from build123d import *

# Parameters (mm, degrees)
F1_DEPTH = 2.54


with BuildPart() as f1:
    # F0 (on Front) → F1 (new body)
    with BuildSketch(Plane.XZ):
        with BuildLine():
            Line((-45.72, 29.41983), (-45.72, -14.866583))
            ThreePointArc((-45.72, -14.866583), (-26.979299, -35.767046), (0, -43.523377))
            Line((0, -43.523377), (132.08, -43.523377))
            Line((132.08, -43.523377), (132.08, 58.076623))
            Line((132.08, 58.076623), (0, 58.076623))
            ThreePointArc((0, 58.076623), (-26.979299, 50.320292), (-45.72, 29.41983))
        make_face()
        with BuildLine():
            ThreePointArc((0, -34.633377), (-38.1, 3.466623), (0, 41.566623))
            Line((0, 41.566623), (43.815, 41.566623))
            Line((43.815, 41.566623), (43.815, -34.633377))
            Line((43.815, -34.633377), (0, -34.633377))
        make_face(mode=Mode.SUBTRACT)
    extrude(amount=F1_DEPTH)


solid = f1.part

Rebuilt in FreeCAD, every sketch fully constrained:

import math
import FreeCAD as App
import Part
import Sketcher

V = App.Vector
Q = App.Units.Quantity

doc = App.newDocument("Part")
body = doc.addObject("PartDesign::Body", "Body")

# Sketch on XZ plane
sketch1 = body.newObject("Sketcher::SketchObject", "Sketch")
sketch1.AttachmentSupport = (doc.getObject("XZ_Plane"), [""])
sketch1.MapMode = "FlatFace"
sketch1.addGeometry(Part.LineSegment(V(-46, 29, 0), V(-46, -15, 0)), False)
sketch1.addGeometry(Part.ArcOfCircle(Part.Circle(V(0, 7, 0), V(0, 0, 1), 51), math.radians(-154), math.radians(-90)), False)
sketch1.addGeometry(Part.LineSegment(V(0, -44, 0), V(132, -44, 0)), False)
sketch1.addGeometry(Part.LineSegment(V(132, -44, 0), V(132, 58, 0)), False)
sketch1.addGeometry(Part.LineSegment(V(132, 58, 0), V(0, 58, 0)), False)
sketch1.addGeometry(Part.ArcOfCircle(Part.Circle(V(0, 7, 0), V(0, 0, 1), 51), math.radians(90), math.radians(154)), False)
sketch1.addGeometry(Part.LineSegment(V(44, -35, 0), V(0, -35, 0)), False)
sketch1.addGeometry(Part.ArcOfCircle(Part.Circle(V(0, 3, 0), V(0, 0, 1), 38), math.radians(90), math.radians(270)), False)
sketch1.addGeometry(Part.LineSegment(V(0, 42, 0), V(44, 42, 0)), False)
sketch1.addGeometry(Part.LineSegment(V(44, 42, 0), V(44, -35, 0)), False)
sketch1.addConstraint(Sketcher.Constraint("Coincident", 0, 2, 1, 1))
sketch1.addConstraint(Sketcher.Constraint("Tangent", 1, 2, 2, 1))
sketch1.addConstraint(Sketcher.Constraint("Coincident", 2, 2, 3, 1))
sketch1.addConstraint(Sketcher.Constraint("Coincident", 3, 2, 4, 1))
sketch1.addConstraint(Sketcher.Constraint("Tangent", 4, 2, 5, 1))
sketch1.addConstraint(Sketcher.Constraint("Coincident", 5, 2, 0, 1))
sketch1.addConstraint(Sketcher.Constraint("Tangent", 6, 2, 7, 2))
sketch1.addConstraint(Sketcher.Constraint("Tangent", 7, 1, 8, 1))
sketch1.addConstraint(Sketcher.Constraint("Coincident", 8, 2, 9, 1))
sketch1.addConstraint(Sketcher.Constraint("Coincident", 9, 2, 6, 1))
sketch1.addConstraint(Sketcher.Constraint("Vertical", 0))
sketch1.addConstraint(Sketcher.Constraint("Horizontal", 2))
sketch1.addConstraint(Sketcher.Constraint("Vertical", 3))
sketch1.addConstraint(Sketcher.Constraint("Horizontal", 4))
sketch1.addConstraint(Sketcher.Constraint("Horizontal", 6))
sketch1.addConstraint(Sketcher.Constraint("Horizontal", 8))
sketch1.addConstraint(Sketcher.Constraint("Vertical", 9))
sketch1.addConstraint(Sketcher.Constraint("Coincident", 5, 3, 1, 3))
sketch1.addConstraint(Sketcher.Constraint("Equal", 1, 5))
sketch1.addConstraint(Sketcher.Constraint("PointOnObject", 1, 3, -2))
sketch1.addConstraint(Sketcher.Constraint("PointOnObject", 7, 3, -2))
sketch1.addConstraint(Sketcher.Constraint("Radius", 1, Q("1.9999999 in")))
sketch1.addConstraint(Sketcher.Constraint("Radius", 7, Q("1.5 in")))
sketch1.addConstraint(Sketcher.Constraint("DistanceX", 2, 1, 2, 2, Q("5.2 in")))
sketch1.addConstraint(Sketcher.Constraint("DistanceX", 0, 2, 2, 2, Q("7 in")))
sketch1.addConstraint(Sketcher.Constraint("DistanceX", 6, 2, 6, 1, Q("1.725 in")))
sketch1.addConstraint(Sketcher.Constraint("DistanceY", 7, 3, 1, 3, Q("0.1499999 in")))
sketch1.addConstraint(Sketcher.Constraint("DistanceY", -1, 1, 1, 3, 7.276621))
pad1 = body.newObject("PartDesign::Pad", "Pad")
pad1.Profile = sketch1
pad1.Length = Q("0.1 in")

doc.recompute()
